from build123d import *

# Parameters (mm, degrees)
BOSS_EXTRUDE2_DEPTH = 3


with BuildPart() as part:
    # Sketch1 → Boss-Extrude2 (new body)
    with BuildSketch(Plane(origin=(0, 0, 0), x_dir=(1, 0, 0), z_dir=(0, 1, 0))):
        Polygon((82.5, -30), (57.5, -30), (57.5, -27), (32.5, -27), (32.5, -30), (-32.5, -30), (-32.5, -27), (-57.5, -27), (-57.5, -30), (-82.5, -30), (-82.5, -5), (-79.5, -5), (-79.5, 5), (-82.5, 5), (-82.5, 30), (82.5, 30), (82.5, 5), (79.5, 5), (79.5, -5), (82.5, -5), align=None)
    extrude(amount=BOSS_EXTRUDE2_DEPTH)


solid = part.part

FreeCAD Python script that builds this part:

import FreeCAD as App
import Part
import Sketcher
Q = App.Units.Quantity

doc = App.newDocument("Part")
body = doc.addObject("PartDesign::Body", "Body")

# Sketch on XZ plane
sketch1 = body.newObject("Sketcher::SketchObject", "Sketch")
sketch1.AttachmentSupport = (doc.getObject("XZ_Plane"), [""])
sketch1.MapMode = "FlatFace"
sketch1.addGeometry([
    Part.LineSegment(App.Vector(57.5, 30, 0), App.Vector(82.5, 30, 0)),  # 0
    Part.LineSegment(App.Vector(82.5, 30, 0), App.Vector(82.5, 5, 0)),  # 1
    Part.LineSegment(App.Vector(82.5, 5, 0), App.Vector(79.5, 5, 0)),  # 2
    Part.LineSegment(App.Vector(79.5, 5, 0), App.Vector(79.5, -5, 0)),  # 3
    Part.LineSegment(App.Vector(79.5, -5, 0), App.Vector(82.5, -5, 0)),  # 4
    Part.LineSegment(App.Vector(82.5, -5, 0), App.Vector(82.5, -30, 0)),  # 5
    Part.LineSegment(App.Vector(82.5, -30, 0), App.Vector(-82.5, -30, 0)),  # 6
    Part.LineSegment(App.Vector(-82.5, -30, 0), App.Vector(-82.5, -5, 0)),  # 7
    Part.LineSegment(App.Vector(-82.5, -5, 0), App.Vector(-79.5, -5, 0)),  # 8
    Part.LineSegment(App.Vector(-79.5, -5, 0), App.Vector(-79.5, 5, 0)),  # 9
    Part.LineSegment(App.Vector(-79.5, 5, 0), App.Vector(-82.5, 5, 0)),  # 10
    Part.LineSegment(App.Vector(-82.5, 5, 0), App.Vector(-82.5, 30, 0)),  # 11
    Part.LineSegment(App.Vector(-82.5, 30, 0), App.Vector(-57.5, 30, 0)),  # 12
    Part.LineSegment(App.Vector(-57.5, 30, 0), App.Vector(-57.5, 27, 0)),  # 13
    Part.LineSegment(App.Vector(-57.5, 27, 0), App.Vector(-32.5, 27, 0)),  # 14
    Part.LineSegment(App.Vector(-32.5, 27, 0), App.Vector(-32.5, 30, 0)),  # 15
    Part.LineSegment(App.Vector(-32.5, 30, 0), App.Vector(32.5, 30, 0)),  # 16
    Part.LineSegment(App.Vector(32.5, 30, 0), App.Vector(32.5, 27, 0)),  # 17
    Part.LineSegment(App.Vector(32.5, 27, 0), App.Vector(57.5, 27, 0)),  # 18
    Part.LineSegment(App.Vector(57.5, 27, 0), App.Vector(57.5, 30, 0)),  # 19
], False)
sketch1.addConstraint([
    Sketcher.Constraint("Coincident", 0, 2, 1, 1),
    Sketcher.Constraint("Coincident", 1, 2, 2, 1),
    Sketcher.Constraint("Coincident", 2, 2, 3, 1),
    Sketcher.Constraint("Coincident", 3, 2, 4, 1),
    Sketcher.Constraint("Coincident", 4, 2, 5, 1),
    Sketcher.Constraint("Coincident", 5, 2, 6, 1),
    Sketcher.Constraint("Coincident", 6, 2, 7, 1),
    Sketcher.Constraint("Coincident", 7, 2, 8, 1),
    Sketcher.Constraint("Coincident", 8, 2, 9, 1),
    Sketcher.Constraint("Coincident", 9, 2, 10, 1),
    Sketcher.Constraint("Coincident", 10, 2, 11, 1),
    Sketcher.Constraint("Coincident", 11, 2, 12, 1),
    Sketcher.Constraint("Coincident", 12, 2, 13, 1),
    Sketcher.Constraint("Coincident", 13, 2, 14, 1),
    Sketcher.Constraint("Coincident", 14, 2, 15, 1),
    Sketcher.Constraint("Coincident", 15, 2, 16, 1),
    Sketcher.Constraint("Coincident", 16, 2, 17, 1),
    Sketcher.Constraint("Coincident", 17, 2, 18, 1),
    Sketcher.Constraint("Coincident", 18, 2, 19, 1),
    Sketcher.Constraint("Coincident", 19, 2, 0, 1),
    Sketcher.Constraint("Horizontal", 0),
    Sketcher.Constraint("Vertical", 1),
    Sketcher.Constraint("Horizontal", 2),
    Sketcher.Constraint("Vertical", 3),
    Sketcher.Constraint("Horizontal", 4),
    Sketcher.Constraint("Vertical", 5),
    Sketcher.Constraint("Horizontal", 6),
    Sketcher.Constraint("Vertical", 7),
    Sketcher.Constraint("Horizontal", 8),
    Sketcher.Constraint("Vertical", 9),
    Sketcher.Constraint("Horizontal", 10),
    Sketcher.Constraint("Vertical", 11),
    Sketcher.Constraint("Horizontal", 12),
    Sketcher.Constraint("Vertical", 13),
    Sketcher.Constraint("Horizontal", 14),
    Sketcher.Constraint("Vertical", 15),
    Sketcher.Constraint("Horizontal", 16),
    Sketcher.Constraint("Vertical", 17),
    Sketcher.Constraint("Horizontal", 18),
    Sketcher.Constraint("Vertical", 19),
    Sketcher.Constraint("Symmetric", 0, 2, 6, 2, -1, 1),
    Sketcher.Constraint("Symmetric", 2, 2, 8, 2, -1, 1),
    Sketcher.Constraint("Symmetric", 4, 2, 10, 2, -1, 1),
    Sketcher.Constraint("Symmetric", 4, 2, 7, 2, -2),
    Sketcher.Constraint("Symmetric", 14, 2, 17, 2, -2),
    Sketcher.Constraint("Symmetric", 12, 2, 19, 2, -2),
    Sketcher.Constraint("Horizontal", 12, 2, 15, 2),
    Sketcher.Constraint("Equal", 12, 14),
    Sketcher.Constraint("Equal", 18, 1),
    Sketcher.Constraint("Equal", 10, 13),
    Sketcher.Constraint("DistanceX", 0, 1, 0, 2, Q("25 mm")),
    Sketcher.Constraint("DistanceX", 2, 2, 2, 1, Q("3 mm")),
    Sketcher.Constraint("DistanceX", 6, 2, 6, 1, Q("165 mm")),
    Sketcher.Constraint("DistanceY", 3, 2, 3, 1, Q("10 mm")),
])
pad1 = body.newObject("PartDesign::Pad", "Pad")
pad1.Profile = sketch1
pad1.Length = 3
pad1.Reversed = True

doc.recompute()
